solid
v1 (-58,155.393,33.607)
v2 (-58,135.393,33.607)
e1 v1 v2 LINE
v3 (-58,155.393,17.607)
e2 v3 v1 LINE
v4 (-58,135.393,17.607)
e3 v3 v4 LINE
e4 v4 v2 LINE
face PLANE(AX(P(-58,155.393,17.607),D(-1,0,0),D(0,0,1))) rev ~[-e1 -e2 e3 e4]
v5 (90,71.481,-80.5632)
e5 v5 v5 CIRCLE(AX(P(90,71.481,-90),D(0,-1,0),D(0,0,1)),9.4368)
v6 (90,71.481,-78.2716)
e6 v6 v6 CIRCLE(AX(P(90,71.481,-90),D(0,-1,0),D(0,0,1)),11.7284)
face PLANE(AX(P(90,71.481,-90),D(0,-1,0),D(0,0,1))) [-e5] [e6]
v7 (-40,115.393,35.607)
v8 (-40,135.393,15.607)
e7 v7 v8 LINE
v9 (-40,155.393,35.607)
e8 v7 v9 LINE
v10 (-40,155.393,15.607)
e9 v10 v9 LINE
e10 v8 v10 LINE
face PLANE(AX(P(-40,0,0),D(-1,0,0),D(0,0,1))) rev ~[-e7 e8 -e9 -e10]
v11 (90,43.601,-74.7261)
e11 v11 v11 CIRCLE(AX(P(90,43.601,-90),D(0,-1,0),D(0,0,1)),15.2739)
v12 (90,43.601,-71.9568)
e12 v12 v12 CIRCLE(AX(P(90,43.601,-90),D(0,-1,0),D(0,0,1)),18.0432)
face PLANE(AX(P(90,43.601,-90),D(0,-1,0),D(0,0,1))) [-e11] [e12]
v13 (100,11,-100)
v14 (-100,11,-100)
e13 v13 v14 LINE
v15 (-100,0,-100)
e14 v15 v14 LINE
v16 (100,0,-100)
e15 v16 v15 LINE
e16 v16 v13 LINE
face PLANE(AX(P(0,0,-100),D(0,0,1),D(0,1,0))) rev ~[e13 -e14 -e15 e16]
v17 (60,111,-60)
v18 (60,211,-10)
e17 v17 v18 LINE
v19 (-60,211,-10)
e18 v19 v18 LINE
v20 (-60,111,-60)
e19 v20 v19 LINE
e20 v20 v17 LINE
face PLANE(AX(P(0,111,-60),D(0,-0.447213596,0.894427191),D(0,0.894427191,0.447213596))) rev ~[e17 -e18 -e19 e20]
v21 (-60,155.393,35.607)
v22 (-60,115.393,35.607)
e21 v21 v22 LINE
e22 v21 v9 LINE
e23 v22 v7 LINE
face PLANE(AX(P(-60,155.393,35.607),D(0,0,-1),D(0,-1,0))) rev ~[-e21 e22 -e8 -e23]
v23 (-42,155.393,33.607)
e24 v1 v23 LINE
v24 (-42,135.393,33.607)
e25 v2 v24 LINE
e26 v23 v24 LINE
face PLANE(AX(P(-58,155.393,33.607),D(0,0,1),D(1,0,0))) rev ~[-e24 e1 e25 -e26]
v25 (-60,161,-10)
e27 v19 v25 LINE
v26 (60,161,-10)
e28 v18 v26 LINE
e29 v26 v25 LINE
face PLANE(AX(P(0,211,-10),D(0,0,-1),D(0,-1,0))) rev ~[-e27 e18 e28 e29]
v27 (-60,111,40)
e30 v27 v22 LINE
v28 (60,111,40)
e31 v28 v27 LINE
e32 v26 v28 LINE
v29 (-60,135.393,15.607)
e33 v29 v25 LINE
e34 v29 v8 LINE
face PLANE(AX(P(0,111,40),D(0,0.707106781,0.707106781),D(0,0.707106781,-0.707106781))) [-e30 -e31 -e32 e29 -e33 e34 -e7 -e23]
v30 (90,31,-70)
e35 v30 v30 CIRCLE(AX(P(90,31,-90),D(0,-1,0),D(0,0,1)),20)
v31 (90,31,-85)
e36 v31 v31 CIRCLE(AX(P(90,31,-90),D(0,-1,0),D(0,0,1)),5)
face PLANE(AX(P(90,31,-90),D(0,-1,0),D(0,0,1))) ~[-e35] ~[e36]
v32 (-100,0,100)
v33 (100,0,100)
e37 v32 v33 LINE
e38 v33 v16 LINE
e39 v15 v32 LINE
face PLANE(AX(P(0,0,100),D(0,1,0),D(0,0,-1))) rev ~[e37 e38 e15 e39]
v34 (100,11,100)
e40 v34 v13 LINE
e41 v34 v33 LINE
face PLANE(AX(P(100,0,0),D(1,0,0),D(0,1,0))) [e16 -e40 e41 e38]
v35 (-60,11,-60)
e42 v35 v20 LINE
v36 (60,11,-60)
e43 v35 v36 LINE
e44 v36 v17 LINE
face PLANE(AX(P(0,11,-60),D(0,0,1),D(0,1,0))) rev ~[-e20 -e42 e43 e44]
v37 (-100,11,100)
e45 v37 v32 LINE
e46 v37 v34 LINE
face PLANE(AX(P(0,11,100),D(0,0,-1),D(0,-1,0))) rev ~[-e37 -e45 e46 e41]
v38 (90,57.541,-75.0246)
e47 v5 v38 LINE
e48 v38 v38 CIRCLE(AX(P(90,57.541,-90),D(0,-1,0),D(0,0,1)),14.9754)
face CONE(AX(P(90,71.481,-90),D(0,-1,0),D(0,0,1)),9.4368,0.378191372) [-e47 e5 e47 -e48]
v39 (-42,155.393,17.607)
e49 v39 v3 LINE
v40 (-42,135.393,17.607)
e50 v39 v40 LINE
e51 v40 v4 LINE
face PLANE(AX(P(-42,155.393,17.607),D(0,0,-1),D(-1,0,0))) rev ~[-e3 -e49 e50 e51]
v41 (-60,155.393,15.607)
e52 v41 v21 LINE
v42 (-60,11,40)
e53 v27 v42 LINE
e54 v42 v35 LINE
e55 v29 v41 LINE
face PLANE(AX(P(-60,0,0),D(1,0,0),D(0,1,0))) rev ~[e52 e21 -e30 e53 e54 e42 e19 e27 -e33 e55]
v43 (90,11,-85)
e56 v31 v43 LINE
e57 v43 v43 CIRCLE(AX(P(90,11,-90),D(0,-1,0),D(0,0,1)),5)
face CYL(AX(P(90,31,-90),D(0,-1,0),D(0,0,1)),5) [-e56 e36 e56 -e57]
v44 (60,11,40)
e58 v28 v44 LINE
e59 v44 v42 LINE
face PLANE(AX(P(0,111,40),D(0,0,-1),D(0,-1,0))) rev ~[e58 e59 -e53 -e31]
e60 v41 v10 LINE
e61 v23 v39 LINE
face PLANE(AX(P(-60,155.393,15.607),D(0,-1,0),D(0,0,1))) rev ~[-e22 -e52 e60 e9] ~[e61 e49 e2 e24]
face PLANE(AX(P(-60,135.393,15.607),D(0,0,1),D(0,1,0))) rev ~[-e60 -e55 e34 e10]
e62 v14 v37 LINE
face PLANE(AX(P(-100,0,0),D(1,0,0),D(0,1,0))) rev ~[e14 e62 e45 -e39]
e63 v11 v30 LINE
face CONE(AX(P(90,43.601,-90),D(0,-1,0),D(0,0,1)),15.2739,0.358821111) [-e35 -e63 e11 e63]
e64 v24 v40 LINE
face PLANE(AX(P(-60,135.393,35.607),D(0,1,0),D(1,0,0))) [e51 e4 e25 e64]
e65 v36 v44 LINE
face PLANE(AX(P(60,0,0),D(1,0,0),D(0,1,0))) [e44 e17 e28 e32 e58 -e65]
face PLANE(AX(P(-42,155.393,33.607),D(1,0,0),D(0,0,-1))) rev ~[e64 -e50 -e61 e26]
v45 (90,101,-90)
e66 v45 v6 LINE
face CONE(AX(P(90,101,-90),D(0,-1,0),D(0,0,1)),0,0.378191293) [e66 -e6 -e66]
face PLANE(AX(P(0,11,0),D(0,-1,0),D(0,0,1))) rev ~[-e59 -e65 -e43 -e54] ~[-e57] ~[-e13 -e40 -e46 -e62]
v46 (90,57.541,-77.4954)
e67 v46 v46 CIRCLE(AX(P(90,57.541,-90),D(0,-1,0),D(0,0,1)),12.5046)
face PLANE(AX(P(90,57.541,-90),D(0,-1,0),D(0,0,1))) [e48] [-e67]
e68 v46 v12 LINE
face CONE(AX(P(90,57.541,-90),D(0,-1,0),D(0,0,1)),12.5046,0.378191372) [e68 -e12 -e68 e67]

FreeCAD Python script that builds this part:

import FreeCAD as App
import Part
import Sketcher
Q = App.Units.Quantity

doc = App.newDocument("Part")
body = doc.addObject("PartDesign::Body", "Body")

# Sketch on YZ plane
sketch1 = body.newObject("Sketcher::SketchObject", "Sketch")
sketch1.AttachmentSupport = (doc.getObject("YZ_Plane"), [""])
sketch1.MapMode = "FlatFace"
sketch1.addGeometry([
    Part.LineSegment(App.Vector(11, 100, 0), App.Vector(0, 100, 0)),
    Part.LineSegment(App.Vector(0, 100, 0), App.Vector(0, -100, 0)),
    Part.LineSegment(App.Vector(0, -100, 0), App.Vector(11, -100, 0)),
    Part.LineSegment(App.Vector(11, -100, 0), App.Vector(11, 100, 0)),
], False)
sketch1.addConstraint([
    Sketcher.Constraint("Coincident", 0, 2, 1, 1),
    Sketcher.Constraint("Coincident", 1, 2, 2, 1),
    Sketcher.Constraint("Coincident", 2, 2, 3, 1),
    Sketcher.Constraint("Coincident", 3, 2, 0, 1),
    Sketcher.Constraint("Horizontal", 0),
    Sketcher.Constraint("Vertical", 1),
    Sketcher.Constraint("Horizontal", 2),
    Sketcher.Constraint("Vertical", 3),
    Sketcher.Constraint("Symmetric", 0, 2, 1, 2, -1, 1),
    Sketcher.Constraint("DistanceX", 0, 2, 0, 1, Q("11 mm")),
    Sketcher.Constraint("DistanceY", 1, 2, 1, 1, Q("200 mm")),
])
pad1 = body.newObject("PartDesign::Pad", "Pad")
pad1.Profile = sketch1
pad1.Length = 200
pad1.Midplane = True

# Sketch on YZ plane
sketch2 = body.newObject("Sketcher::SketchObject", "Sketch001")
sketch2.AttachmentSupport = (doc.getObject("YZ_Plane"), [""])
sketch2.MapMode = "FlatFace"
sketch2.addGeometry([
    Part.LineSegment(App.Vector(11, 40, 0), App.Vector(11, -60, 0)),  # 0
    Part.LineSegment(App.Vector(11, -60, 0), App.Vector(111, -60, 0)),  # 1
    Part.LineSegment(App.Vector(111, -60, 0), App.Vector(211, -10, 0)),  # 2
    Part.LineSegment(App.Vector(211, -10, 0), App.Vector(161, -10, 0)),  # 3
    Part.LineSegment(App.Vector(161, -10, 0), App.Vector(111, 40, 0)),  # 4
    Part.LineSegment(App.Vector(111, 40, 0), App.Vector(11, 40, 0)),  # 5
], False)
sketch2.addConstraint([
    Sketcher.Constraint("Coincident", 0, 2, 1, 1),
    Sketcher.Constraint("Coincident", 1, 2, 2, 1),
    Sketcher.Constraint("Coincident", 2, 2, 3, 1),
    Sketcher.Constraint("Coincident", 3, 2, 4, 1),
    Sketcher.Constraint("Coincident", 4, 2, 5, 1),
    Sketcher.Constraint("Coincident", 5, 2, 0, 1),
    Sketcher.Constraint("Vertical", 0),
    Sketcher.Constraint("Horizontal", 1),
    Sketcher.Constraint("Horizontal", 3),
    Sketcher.Constraint("Horizontal", 5),
    Sketcher.Constraint("Vertical", 1, 2, 4, 2),
    Sketcher.Constraint("Equal", 5, 0),
    Sketcher.Constraint("DistanceX", 1, 1, 1, 2, Q("100 mm")),
    Sketcher.Constraint("DistanceX", 3, 2, 3, 1, Q("50 mm")),
    Sketcher.Constraint("DistanceY", -1, 1, 4, 2, Q("40 mm")),
    Sketcher.Constraint("DistanceX", 1, 2, 2, 2, Q("100 mm")),
    Sketcher.Constraint("DistanceY", 1, 2, 2, 2, Q("50 mm")),
    Sketcher.Constraint("DistanceX", -1, 1, 0, 2, Q("11 mm")),
])
pad2 = body.newObject("PartDesign::Pad", "Pad001")
pad2.Profile = sketch2
pad2.Length = 120
pad2.Midplane = True

# Sketch on YZ plane
sketch3 = body.newObject("Sketcher::SketchObject", "Sketch002")
sketch3.AttachmentSupport = (doc.getObject("YZ_Plane"), [""])
sketch3.MapMode = "FlatFace"
sketch3.AttachmentOffset = App.Placement(App.Vector(0, 0, -60), App.Rotation())
sketch3.addGeometry([
    Part.LineSegment(App.Vector(155, 36, 0), App.Vector(155, 16, 0)),
    Part.LineSegment(App.Vector(155, 16, 0), App.Vector(135, 16, 0)),
    Part.LineSegment(App.Vector(135, 16, 0), App.Vector(115, 36, 0)),
    Part.LineSegment(App.Vector(115, 36, 0), App.Vector(155, 36, 0)),
], False)
sketch3.addConstraint([
    Sketcher.Constraint("Coincident", 0, 2, 1, 1),
    Sketcher.Constraint("Coincident", 1, 2, 2, 1),
    Sketcher.Constraint("Coincident", 2, 2, 3, 1),
    Sketcher.Constraint("Coincident", 3, 2, 0, 1),
    Sketcher.Constraint("Vertical", 0),
    Sketcher.Constraint("Horizontal", 1),
    Sketcher.Constraint("Horizontal", 3),
    Sketcher.Constraint("Equal", 1, 0),
    Sketcher.Constraint("DistanceX", 1, 2, 1, 1, Q("20 mm")),
    Sketcher.Constraint("DistanceX", 2, 2, 1, 2, Q("20 mm")),
    Sketcher.Constraint("DistanceX", -1, 1, 0, 2, Q("155.393 mm")),
    Sketcher.Constraint("DistanceY", -1, 1, 0, 2, Q("15.607 mm")),
])
pad3 = body.newObject("PartDesign::Pad", "Pad002")
pad3.Profile = sketch3
pad3.Length = 20

# Sketch on XZ plane
sketch4 = body.newObject("Sketcher::SketchObject", "Sketch003")
sketch4.AttachmentSupport = (doc.getObject("XZ_Plane"), [""])
sketch4.MapMode = "FlatFace"
sketch4.AttachmentOffset = App.Placement(App.Vector(0, 0, -155.393), App.Rotation())
sketch4.addGeometry([
    Part.LineSegment(App.Vector(-58, 34, 0), App.Vector(-42, 34, 0)),
    Part.LineSegment(App.Vector(-42, 34, 0), App.Vector(-42, 18, 0)),
    Part.LineSegment(App.Vector(-42, 18, 0), App.Vector(-58, 18, 0)),
    Part.LineSegment(App.Vector(-58, 18, 0), App.Vector(-58, 34, 0)),
], False)
sketch4.addConstraint([
    Sketcher.Constraint("Coincident", 0, 2, 1, 1),
    Sketcher.Constraint("Coincident", 1, 2, 2, 1),
    Sketcher.Constraint("Coincident", 2, 2, 3, 1),
    Sketcher.Constraint("Coincident", 3, 2, 0, 1),
    Sketcher.Constraint("Horizontal", 0),
    Sketcher.Constraint("Vertical", 1),
    Sketcher.Constraint("Horizontal", 2),
    Sketcher.Constraint("Vertical", 3),
    Sketcher.Constraint("Equal", 2, 1),
    Sketcher.Constraint("DistanceX", 0, 1, 0, 2, Q("16 mm")),
    Sketcher.Constraint("DistanceX", 0, 2, -1, 1, Q("42 mm")),
    Sketcher.Constraint("DistanceY", -1, 1, 0, 2, Q("33.607 mm")),
])
pocket1 = body.newObject("PartDesign::Pocket", "Pocket")
pocket1.Profile = sketch4
pocket1.Length = 20
pocket1.Reversed = True

# Sketch on YZ plane
sketch5 = body.newObject("Sketcher::SketchObject", "Sketch004")
sketch5.AttachmentSupport = (doc.getObject("YZ_Plane"), [""])
sketch5.MapMode = "FlatFace"
sketch5.AttachmentOffset = App.Placement(App.Vector(0, 0, 90), App.Rotation())
sketch5.addGeometry([
    Part.LineSegment(App.Vector(11, -85, 0), App.Vector(11, -90, 0)),  # 0
    Part.LineSegment(App.Vector(11, -90, 0), App.Vector(101, -90, 0)),  # 1
    Part.LineSegment(App.Vector(101, -90, 0), App.Vector(71.481, -78.2716, 0)),  # 2
    Part.LineSegment(App.Vector(71.481, -78.2716, 0), App.Vector(71.481, -80.5632, 0)),  # 3
    Part.LineSegment(App.Vector(71.481, -80.5632, 0), App.Vector(57.541, -75.0246, 0)),  # 4
    Part.LineSegment(App.Vector(57.541, -75.0246, 0), App.Vector(57.541, -77.4954, 0)),  # 5
    Part.LineSegment(App.Vector(57.541, -77.4954, 0), App.Vector(43.601, -71.9568, 0)),  # 6
    Part.LineSegment(App.Vector(43.601, -71.9568, 0), App.Vector(43.601, -74.7261, 0)),  # 7
    Part.LineSegment(App.Vector(43.601, -74.7261, 0), App.Vector(31, -70, 0)),  # 8
    Part.LineSegment(App.Vector(31, -70, 0), App.Vector(31, -85, 0)),  # 9
    Part.LineSegment(App.Vector(31, -85, 0), App.Vector(11, -85, 0)),  # 10
], False)
sketch5.addGeometry(Part.LineSegment(App.Vector(101, -90, 0), App.Vector(11, -90, 0)), True)  # axis
sketch5.addConstraint([
    Sketcher.Constraint("Coincident", 0, 2, 1, 1),
    Sketcher.Constraint("Coincident", 1, 2, 2, 1),
    Sketcher.Constraint("Coincident", 2, 2, 3, 1),
    Sketcher.Constraint("Coincident", 3, 2, 4, 1),
    Sketcher.Constraint("Coincident", 4, 2, 5, 1),
    Sketcher.Constraint("Coincident", 5, 2, 6, 1),
    Sketcher.Constraint("Coincident", 6, 2, 7, 1),
    Sketcher.Constraint("Coincident", 7, 2, 8, 1),
    Sketcher.Constraint("Coincident", 8, 2, 9, 1),
    Sketcher.Constraint("Coincident", 9, 2, 10, 1),
    Sketcher.Constraint("Coincident", 10, 2, 0, 1),
    Sketcher.Constraint("Vertical", 0),
    Sketcher.Constraint("Horizontal", 1),
    Sketcher.Constraint("Vertical", 3),
    Sketcher.Constraint("Vertical", 5),
    Sketcher.Constraint("Vertical", 7),
    Sketcher.Constraint("Vertical", 9),
    Sketcher.Constraint("Horizontal", 10),
    Sketcher.Constraint("Horizontal", 11),
    Sketcher.Constraint("Coincident", 11, 1, 1, 2),
    Sketcher.Constraint("DistanceX", 10, 2, 10, 1, Q("20 mm")),
    Sketcher.Constraint("DistanceY", 0, 2, 0, 1, Q("5 mm")),
    Sketcher.Constraint("DistanceY", 9, 2, 9, 1, Q("15 mm")),
    Sketcher.Constraint("Distance", 4, Q("15 mm")),
    Sketcher.Constraint("Distance", 6, Q("15 mm")),
    Sketcher.Constraint("DistanceX", 11, 2, 9, 2, Q("20 mm")),
    Sketcher.Constraint("DistanceX", 1, 1, 1, 2, Q("90 mm")),
    Sketcher.Constraint("DistanceX", -1, 1, 0, 2, Q("11 mm")),
    Sketcher.Constraint("DistanceY", 0, 2, -1, 1, Q("90 mm")),
    Sketcher.Constraint("DistanceX", 4, 2, 2, 2, Q("13.94 mm")),
    Sketcher.Constraint("DistanceX", 6, 2, 4, 2, Q("13.94 mm")),
    Sketcher.Constraint("DistanceY", 3, 2, 3, 1, Q("2.2916 mm")),
    Sketcher.Constraint("DistanceY", 5, 2, 5, 1, Q("2.4708 mm")),
    Sketcher.Constraint("DistanceY", 7, 2, 7, 1, Q("2.7693 mm")),
    Sketcher.Constraint("DistanceX", -1, 1, 2, 2, Q("71.481 mm")),
    Sketcher.Constraint("DistanceY", 7, 2, -1, 1, Q("74.726 mm")),
])
revolution = body.newObject("PartDesign::Revolution", "Revolution")
revolution.Profile = sketch5
revolution.ReferenceAxis = (sketch5, ["Axis0"])
revolution.Angle = 360

doc.recompute()
